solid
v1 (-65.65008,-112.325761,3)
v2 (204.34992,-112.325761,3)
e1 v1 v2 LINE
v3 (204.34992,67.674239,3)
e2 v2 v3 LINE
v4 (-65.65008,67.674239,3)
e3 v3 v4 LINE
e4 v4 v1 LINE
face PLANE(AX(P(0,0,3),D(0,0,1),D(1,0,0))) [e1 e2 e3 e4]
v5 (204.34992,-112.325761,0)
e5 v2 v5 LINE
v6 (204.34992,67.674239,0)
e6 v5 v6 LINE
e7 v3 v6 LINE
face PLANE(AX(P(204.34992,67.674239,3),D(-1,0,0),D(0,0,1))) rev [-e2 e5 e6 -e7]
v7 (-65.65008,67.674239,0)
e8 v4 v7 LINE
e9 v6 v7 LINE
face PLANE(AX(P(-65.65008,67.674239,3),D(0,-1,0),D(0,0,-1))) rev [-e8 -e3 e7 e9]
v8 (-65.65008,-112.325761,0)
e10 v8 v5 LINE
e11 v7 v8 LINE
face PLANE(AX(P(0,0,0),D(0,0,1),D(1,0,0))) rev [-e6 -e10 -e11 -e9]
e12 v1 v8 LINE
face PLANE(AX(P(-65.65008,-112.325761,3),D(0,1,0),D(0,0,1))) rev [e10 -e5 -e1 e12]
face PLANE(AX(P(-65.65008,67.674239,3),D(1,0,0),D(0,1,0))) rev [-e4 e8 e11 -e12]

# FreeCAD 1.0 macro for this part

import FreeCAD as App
import Part
import Sketcher
from FreeCAD import Vector
Q = App.Units.Quantity

doc = App.newDocument("Part")
body = doc.addObject("PartDesign::Body", "Body")

sketch1 = body.newObject("Sketcher::SketchObject", "Sketch")
sketch1.AttachmentSupport = (doc.getObject("XY_Plane"), [""])
sketch1.MapMode = "FlatFace"
sketch1.addGeometry(Part.LineSegment(Vector(-65.65008, 67.674239, 0), Vector(-65.65008, -112.325761, 0)), False)
sketch1.addGeometry(Part.LineSegment(Vector(-65.65008, -112.325761, 0), Vector(204.34992, -112.325761, 0)), False)
sketch1.addGeometry(Part.LineSegment(Vector(204.34992, -112.325761, 0), Vector(204.34992, 67.674239, 0)), False)
sketch1.addGeometry(Part.LineSegment(Vector(204.34992, 67.674239, 0), Vector(-65.65008, 67.674239, 0)), False)
sketch1.addConstraint(Sketcher.Constraint("Coincident", 0, 2, 1, 1))
sketch1.addConstraint(Sketcher.Constraint("Coincident", 1, 2, 2, 1))
sketch1.addConstraint(Sketcher.Constraint("Coincident", 2, 2, 3, 1))
sketch1.addConstraint(Sketcher.Constraint("Coincident", 3, 2, 0, 1))
sketch1.addConstraint(Sketcher.Constraint("Vertical", 0))
sketch1.addConstraint(Sketcher.Constraint("Horizontal", 1))
sketch1.addConstraint(Sketcher.Constraint("Vertical", 2))
sketch1.addConstraint(Sketcher.Constraint("Horizontal", 3))
sketch1.addConstraint(Sketcher.Constraint("DistanceX", 1, 1, 1, 2, Q("270 mm")))
sketch1.addConstraint(Sketcher.Constraint("DistanceY", 0, 2, 0, 1, Q("180 mm")))
sketch1.addConstraint(Sketcher.Constraint("DistanceX", 0, 2, -1, 1, Q("65.65008 mm")))
sketch1.addConstraint(Sketcher.Constraint("DistanceY", 0, 2, -1, 1, Q("112.325761 mm")))
pad1 = body.newObject("PartDesign::Pad", "Pad")
pad1.Profile = sketch1
pad1.Length = 3

doc.recompute()
